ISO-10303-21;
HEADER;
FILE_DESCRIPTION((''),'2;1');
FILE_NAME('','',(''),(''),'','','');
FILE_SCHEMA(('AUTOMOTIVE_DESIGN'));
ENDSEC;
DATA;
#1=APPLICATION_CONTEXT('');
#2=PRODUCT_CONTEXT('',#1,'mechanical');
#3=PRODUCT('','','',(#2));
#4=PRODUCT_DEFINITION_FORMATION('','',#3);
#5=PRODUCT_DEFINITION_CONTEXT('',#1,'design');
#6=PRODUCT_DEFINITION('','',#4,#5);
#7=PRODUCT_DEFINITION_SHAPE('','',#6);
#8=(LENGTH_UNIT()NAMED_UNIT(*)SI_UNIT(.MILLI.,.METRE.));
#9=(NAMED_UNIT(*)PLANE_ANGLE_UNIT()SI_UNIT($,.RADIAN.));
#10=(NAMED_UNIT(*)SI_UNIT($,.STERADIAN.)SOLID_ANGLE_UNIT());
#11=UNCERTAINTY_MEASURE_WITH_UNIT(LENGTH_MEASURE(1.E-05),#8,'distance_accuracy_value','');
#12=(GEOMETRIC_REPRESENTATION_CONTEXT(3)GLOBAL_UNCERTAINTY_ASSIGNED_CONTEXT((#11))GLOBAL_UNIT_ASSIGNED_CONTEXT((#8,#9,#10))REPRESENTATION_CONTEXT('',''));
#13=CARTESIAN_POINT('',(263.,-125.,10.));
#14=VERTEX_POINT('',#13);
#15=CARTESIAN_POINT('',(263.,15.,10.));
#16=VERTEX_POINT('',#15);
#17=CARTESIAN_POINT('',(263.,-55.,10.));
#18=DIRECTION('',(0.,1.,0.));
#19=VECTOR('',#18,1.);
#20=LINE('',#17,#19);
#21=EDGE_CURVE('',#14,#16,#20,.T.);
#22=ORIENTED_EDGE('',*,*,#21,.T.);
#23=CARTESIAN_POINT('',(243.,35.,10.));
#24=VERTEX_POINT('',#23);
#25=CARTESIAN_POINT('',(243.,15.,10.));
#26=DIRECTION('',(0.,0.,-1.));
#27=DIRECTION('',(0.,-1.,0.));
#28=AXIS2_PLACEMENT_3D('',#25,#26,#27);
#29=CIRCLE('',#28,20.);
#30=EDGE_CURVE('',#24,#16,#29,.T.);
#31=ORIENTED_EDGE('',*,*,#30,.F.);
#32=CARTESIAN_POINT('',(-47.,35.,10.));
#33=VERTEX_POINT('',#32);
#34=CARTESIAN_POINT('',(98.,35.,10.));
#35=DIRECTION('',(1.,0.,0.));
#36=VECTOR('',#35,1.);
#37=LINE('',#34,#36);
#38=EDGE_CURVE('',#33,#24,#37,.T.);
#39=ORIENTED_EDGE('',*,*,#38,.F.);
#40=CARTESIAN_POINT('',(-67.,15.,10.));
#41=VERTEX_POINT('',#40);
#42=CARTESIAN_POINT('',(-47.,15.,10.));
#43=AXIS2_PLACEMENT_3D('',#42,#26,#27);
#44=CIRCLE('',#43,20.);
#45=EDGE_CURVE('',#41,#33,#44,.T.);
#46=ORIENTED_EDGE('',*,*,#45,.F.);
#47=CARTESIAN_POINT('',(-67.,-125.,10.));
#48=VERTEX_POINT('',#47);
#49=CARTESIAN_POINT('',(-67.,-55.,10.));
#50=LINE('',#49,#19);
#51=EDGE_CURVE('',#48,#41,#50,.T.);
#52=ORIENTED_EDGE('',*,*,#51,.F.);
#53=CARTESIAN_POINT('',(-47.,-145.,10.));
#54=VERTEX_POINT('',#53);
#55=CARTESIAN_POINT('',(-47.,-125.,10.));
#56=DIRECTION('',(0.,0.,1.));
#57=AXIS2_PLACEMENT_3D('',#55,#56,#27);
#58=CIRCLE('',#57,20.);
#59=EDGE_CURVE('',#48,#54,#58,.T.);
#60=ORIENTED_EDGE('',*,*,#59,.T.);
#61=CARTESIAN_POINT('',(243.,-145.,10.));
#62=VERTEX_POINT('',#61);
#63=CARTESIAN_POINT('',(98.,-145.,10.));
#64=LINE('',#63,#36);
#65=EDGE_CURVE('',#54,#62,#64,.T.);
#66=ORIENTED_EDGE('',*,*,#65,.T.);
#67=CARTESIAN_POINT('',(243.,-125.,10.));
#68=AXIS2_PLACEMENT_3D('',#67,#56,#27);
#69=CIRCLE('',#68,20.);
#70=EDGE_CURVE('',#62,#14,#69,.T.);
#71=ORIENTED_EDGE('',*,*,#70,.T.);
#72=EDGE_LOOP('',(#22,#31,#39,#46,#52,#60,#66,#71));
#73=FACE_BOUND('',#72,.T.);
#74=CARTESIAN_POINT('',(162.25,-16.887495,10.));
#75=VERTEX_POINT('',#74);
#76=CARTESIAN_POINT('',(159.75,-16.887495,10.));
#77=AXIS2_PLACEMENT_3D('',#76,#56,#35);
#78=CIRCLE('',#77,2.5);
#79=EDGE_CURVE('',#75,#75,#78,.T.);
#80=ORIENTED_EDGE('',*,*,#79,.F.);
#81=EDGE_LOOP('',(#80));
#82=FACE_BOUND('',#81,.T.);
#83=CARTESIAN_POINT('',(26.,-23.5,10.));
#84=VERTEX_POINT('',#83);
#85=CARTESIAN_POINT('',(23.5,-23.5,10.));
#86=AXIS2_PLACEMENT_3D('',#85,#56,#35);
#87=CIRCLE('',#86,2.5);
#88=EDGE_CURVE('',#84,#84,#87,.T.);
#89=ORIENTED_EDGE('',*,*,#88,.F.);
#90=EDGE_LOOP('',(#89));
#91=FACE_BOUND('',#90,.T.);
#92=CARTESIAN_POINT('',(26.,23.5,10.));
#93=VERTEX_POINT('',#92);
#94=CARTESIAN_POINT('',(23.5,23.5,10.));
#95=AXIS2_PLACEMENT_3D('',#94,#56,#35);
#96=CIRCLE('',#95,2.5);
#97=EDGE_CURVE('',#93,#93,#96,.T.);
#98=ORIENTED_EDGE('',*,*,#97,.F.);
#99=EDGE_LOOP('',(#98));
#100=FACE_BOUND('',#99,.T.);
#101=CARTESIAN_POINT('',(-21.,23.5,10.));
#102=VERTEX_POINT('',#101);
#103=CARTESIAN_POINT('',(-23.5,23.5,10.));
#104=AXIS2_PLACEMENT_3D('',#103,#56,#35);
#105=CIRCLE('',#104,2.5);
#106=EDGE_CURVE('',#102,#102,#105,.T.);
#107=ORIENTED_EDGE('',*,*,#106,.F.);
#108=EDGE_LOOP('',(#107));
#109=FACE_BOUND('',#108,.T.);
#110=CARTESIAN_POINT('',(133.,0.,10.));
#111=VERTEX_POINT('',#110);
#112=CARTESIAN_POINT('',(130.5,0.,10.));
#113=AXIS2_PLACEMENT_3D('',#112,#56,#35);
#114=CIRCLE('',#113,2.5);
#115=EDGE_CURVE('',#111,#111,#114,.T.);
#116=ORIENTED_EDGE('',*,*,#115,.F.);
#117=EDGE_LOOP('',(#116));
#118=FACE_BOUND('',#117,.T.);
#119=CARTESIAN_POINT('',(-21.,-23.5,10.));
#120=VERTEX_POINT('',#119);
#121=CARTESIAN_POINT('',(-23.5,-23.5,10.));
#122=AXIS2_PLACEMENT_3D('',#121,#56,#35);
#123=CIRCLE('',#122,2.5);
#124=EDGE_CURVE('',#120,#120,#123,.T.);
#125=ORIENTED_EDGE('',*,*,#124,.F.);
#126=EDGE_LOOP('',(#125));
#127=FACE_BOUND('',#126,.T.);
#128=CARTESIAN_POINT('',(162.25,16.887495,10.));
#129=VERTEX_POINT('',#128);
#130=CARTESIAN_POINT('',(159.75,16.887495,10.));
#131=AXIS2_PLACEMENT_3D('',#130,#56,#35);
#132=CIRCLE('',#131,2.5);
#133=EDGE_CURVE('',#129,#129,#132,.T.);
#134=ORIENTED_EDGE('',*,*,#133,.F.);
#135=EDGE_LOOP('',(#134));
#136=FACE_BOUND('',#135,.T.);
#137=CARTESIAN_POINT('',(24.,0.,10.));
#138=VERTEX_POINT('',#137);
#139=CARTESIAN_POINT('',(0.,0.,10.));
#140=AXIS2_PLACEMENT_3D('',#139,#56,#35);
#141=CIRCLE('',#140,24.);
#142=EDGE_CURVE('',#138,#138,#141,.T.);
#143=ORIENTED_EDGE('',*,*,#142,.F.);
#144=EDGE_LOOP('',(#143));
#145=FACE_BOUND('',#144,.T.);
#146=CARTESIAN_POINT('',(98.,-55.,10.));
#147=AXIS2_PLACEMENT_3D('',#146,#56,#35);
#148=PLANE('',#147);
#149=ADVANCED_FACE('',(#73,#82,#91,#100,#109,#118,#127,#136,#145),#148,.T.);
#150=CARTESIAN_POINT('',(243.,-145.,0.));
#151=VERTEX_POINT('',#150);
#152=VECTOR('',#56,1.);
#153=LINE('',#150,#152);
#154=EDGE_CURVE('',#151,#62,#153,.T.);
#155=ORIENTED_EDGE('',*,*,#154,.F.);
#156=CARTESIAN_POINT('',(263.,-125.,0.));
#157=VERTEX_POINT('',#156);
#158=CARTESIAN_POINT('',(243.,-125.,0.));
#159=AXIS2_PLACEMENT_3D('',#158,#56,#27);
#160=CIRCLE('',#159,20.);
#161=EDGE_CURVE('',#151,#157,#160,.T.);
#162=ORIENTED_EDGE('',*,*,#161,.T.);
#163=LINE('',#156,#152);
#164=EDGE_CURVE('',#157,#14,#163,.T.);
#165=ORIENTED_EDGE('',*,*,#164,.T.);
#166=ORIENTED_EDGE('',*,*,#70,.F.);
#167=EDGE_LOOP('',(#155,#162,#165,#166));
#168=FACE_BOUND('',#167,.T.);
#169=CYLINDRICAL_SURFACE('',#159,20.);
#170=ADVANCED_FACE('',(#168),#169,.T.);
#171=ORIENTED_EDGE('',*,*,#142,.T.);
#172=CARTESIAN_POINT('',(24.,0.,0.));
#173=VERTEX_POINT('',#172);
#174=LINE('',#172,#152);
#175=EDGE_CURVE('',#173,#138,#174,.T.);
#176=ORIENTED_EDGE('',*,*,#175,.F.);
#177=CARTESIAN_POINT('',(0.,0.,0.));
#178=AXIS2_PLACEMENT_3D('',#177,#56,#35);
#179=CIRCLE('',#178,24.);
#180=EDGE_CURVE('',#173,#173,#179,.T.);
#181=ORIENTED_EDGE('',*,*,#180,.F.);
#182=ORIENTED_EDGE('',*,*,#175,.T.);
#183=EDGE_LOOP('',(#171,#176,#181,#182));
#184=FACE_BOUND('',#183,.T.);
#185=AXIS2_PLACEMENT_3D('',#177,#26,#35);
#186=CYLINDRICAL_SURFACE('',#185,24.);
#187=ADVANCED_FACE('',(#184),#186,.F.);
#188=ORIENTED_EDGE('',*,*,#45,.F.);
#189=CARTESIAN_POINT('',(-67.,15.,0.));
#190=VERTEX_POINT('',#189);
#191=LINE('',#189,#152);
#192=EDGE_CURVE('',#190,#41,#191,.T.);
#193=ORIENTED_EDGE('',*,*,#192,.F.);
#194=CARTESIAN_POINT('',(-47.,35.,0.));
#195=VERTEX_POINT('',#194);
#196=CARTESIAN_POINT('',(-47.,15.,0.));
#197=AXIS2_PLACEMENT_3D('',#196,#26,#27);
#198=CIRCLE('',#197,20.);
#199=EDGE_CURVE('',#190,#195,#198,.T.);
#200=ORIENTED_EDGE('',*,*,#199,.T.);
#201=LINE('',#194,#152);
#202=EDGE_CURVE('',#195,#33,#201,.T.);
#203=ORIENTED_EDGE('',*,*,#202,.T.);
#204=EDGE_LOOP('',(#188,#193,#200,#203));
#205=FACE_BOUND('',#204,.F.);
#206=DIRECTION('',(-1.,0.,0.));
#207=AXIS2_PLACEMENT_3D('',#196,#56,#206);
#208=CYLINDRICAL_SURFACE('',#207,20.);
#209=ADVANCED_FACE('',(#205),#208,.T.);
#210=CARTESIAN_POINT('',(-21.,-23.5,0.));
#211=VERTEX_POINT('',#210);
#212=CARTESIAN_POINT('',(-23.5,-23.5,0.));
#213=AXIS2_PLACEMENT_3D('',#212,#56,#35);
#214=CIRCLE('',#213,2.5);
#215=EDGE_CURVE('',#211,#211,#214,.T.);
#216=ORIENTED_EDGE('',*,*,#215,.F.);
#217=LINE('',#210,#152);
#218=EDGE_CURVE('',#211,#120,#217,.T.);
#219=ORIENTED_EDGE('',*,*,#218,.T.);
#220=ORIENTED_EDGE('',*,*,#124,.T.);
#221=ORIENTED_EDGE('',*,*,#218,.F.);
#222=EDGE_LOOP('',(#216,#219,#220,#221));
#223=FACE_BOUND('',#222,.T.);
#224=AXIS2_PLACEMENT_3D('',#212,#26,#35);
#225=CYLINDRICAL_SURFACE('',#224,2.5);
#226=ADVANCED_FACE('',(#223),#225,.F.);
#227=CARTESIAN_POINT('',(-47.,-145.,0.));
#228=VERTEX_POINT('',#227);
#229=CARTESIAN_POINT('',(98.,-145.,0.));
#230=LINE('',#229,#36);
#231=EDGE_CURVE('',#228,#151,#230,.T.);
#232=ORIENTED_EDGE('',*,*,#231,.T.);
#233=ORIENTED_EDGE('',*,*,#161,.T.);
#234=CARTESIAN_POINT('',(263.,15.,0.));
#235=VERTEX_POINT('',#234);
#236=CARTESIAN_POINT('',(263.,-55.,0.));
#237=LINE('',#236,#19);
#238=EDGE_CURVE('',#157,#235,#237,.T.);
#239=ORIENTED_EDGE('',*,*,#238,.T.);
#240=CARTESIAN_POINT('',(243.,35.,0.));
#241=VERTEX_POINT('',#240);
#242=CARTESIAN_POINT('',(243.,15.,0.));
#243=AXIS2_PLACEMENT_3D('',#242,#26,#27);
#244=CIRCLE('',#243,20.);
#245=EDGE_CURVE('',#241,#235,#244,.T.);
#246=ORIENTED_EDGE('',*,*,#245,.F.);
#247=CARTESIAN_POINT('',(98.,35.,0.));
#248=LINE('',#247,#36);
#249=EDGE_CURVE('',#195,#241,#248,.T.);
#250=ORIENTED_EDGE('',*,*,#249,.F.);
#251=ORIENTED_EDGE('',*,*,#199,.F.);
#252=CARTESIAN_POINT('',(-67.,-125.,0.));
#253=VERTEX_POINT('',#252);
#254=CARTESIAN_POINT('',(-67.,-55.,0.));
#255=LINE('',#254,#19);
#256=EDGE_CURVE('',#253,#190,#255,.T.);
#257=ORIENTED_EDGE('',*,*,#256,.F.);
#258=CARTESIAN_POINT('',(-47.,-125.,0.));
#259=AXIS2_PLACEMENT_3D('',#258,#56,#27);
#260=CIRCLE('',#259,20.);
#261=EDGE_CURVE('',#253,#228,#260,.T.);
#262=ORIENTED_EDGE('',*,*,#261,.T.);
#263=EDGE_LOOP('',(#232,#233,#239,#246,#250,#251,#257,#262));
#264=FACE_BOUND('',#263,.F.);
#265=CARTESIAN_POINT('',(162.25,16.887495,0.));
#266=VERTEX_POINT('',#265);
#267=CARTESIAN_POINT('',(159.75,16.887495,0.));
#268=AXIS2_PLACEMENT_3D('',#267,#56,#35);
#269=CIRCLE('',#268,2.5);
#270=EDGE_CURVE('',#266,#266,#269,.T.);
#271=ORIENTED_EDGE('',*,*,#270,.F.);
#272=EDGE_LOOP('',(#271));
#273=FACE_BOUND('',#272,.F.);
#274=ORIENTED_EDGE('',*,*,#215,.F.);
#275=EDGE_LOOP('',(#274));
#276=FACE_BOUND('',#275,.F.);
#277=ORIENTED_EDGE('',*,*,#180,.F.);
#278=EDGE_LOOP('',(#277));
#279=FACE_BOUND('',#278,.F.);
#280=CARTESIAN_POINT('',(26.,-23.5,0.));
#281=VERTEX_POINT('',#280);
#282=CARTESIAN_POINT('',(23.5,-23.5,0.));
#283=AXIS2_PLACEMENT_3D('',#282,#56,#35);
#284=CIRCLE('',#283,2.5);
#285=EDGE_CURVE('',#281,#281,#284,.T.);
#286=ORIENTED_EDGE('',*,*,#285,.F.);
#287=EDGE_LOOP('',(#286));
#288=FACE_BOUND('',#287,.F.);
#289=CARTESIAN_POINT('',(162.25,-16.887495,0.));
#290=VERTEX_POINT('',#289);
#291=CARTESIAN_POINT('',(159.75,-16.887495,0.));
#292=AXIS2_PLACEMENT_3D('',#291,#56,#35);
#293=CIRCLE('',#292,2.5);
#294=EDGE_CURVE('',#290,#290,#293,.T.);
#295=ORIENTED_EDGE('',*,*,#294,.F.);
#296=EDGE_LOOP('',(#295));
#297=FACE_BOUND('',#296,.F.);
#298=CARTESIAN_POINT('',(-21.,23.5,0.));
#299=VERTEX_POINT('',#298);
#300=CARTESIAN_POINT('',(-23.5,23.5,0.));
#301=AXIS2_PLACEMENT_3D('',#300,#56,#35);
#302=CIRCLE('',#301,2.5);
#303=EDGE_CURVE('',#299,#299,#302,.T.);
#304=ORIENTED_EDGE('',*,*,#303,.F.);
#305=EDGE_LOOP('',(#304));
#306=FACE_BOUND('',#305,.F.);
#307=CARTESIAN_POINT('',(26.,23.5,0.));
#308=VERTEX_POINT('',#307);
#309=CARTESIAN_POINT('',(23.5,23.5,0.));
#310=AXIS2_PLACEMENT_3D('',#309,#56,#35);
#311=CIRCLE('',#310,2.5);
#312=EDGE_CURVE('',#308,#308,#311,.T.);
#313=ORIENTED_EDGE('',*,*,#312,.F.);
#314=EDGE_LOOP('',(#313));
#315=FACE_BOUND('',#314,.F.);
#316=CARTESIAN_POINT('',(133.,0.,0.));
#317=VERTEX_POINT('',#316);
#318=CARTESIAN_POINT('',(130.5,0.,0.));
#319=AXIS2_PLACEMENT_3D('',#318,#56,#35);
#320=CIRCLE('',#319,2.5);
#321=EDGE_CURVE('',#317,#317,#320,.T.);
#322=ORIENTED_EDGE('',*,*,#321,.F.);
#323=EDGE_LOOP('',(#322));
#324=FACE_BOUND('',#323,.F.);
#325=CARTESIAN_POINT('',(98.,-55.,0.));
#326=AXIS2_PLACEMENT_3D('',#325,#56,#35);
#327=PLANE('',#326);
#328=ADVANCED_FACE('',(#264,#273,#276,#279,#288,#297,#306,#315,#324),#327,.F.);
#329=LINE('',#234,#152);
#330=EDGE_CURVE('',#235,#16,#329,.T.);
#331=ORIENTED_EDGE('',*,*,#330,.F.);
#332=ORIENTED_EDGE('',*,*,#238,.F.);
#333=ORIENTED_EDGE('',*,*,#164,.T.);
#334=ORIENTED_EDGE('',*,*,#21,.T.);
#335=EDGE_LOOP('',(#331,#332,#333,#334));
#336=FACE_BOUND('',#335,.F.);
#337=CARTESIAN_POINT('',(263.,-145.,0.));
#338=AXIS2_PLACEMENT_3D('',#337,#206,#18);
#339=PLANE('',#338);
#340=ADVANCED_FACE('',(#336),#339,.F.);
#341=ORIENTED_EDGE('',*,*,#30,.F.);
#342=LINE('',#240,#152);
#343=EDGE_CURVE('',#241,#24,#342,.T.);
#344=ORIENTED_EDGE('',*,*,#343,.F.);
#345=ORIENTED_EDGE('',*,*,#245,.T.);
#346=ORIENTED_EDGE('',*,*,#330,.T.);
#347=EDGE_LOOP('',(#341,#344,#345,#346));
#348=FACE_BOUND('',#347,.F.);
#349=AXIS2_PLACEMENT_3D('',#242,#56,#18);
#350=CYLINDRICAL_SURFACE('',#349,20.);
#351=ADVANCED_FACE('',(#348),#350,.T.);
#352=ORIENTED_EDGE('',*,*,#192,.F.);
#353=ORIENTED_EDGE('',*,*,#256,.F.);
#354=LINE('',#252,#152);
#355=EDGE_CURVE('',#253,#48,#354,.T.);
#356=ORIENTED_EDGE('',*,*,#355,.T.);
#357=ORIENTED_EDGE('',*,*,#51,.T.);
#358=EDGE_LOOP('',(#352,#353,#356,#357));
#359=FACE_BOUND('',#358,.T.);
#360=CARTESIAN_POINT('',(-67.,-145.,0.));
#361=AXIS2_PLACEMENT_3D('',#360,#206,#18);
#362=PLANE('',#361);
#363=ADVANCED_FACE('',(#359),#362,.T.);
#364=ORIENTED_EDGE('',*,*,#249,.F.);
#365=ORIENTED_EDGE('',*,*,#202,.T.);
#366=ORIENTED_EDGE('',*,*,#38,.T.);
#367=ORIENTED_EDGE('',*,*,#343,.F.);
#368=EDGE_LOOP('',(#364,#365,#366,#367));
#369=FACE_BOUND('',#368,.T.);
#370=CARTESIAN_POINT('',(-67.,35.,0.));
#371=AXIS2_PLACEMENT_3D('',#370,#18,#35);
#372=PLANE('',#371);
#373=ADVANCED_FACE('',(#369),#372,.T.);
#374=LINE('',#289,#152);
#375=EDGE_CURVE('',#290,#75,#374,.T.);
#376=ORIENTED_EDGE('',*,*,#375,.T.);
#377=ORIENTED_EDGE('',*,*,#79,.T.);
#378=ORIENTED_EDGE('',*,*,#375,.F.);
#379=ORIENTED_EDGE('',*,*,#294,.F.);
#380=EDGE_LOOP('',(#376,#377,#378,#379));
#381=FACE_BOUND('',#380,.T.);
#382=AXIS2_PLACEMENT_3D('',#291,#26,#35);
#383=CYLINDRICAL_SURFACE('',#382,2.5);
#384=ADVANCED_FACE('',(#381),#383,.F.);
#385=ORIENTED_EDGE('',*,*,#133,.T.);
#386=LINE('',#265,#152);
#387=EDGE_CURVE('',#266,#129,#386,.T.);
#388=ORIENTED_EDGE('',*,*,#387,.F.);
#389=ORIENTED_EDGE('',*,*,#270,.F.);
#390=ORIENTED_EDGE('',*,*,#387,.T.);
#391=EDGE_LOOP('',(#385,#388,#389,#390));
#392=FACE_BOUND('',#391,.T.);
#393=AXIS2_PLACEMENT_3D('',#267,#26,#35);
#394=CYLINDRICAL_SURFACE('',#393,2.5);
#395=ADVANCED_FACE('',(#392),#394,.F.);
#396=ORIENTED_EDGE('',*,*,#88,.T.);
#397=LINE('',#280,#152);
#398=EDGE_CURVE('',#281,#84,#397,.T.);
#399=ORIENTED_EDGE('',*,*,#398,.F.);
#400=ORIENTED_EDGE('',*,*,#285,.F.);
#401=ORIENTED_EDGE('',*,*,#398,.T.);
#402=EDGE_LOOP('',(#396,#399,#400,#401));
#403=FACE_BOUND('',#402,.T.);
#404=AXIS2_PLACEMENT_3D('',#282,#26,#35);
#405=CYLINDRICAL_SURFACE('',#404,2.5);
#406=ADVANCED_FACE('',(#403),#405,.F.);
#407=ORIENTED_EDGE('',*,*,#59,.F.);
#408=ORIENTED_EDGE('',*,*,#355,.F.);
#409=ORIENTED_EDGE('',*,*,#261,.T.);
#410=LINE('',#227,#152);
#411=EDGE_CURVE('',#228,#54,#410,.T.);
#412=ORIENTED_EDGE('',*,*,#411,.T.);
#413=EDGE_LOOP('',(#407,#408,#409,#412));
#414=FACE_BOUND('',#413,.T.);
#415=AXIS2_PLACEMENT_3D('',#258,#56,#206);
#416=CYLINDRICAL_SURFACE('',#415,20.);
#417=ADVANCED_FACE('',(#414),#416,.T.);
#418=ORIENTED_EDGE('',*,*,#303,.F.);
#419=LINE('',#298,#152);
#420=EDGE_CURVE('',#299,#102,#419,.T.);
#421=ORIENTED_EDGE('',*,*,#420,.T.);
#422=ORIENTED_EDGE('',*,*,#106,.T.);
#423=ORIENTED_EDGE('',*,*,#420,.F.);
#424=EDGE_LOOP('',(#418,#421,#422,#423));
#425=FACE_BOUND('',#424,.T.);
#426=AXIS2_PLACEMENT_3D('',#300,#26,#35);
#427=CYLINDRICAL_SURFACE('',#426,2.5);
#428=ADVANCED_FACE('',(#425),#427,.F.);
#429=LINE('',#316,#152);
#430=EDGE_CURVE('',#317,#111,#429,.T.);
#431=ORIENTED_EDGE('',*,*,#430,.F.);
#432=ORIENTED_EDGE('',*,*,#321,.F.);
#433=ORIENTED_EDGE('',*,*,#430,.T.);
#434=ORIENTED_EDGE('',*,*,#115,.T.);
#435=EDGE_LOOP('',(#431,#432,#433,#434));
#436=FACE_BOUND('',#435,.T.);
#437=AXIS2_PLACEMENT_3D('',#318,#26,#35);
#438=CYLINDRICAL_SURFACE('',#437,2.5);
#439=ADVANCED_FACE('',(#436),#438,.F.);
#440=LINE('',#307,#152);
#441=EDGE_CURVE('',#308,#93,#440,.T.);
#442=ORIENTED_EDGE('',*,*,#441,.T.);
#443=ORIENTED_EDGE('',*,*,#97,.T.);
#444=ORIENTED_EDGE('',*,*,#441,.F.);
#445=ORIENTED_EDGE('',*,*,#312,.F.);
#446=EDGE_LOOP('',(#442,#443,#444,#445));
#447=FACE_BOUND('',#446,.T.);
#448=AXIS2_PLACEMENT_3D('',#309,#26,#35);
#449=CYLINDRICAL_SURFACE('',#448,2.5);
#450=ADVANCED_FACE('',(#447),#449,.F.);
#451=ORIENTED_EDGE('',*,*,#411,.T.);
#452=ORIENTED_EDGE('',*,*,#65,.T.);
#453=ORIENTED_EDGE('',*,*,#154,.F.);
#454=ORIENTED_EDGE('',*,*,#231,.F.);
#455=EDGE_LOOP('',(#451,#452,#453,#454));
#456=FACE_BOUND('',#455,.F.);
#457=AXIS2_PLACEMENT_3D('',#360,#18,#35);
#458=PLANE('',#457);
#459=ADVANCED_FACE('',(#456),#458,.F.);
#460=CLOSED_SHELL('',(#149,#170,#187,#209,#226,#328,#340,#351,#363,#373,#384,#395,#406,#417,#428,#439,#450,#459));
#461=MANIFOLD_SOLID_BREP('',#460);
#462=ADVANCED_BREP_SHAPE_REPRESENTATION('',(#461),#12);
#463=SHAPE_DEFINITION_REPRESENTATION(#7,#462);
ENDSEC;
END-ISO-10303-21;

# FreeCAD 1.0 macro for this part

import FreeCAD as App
import Part
import Sketcher
from FreeCAD import Vector


def edges_at(feature, points):
    """Names of the edges that pass closest to the given points."""
    edges = feature.Shape.Edges
    near = lambda p: min(range(len(edges)), key=lambda i: edges[i].distToShape(Part.Vertex(*p))[0])
    return sorted({f"Edge{near(p) + 1}" for p in points})


def add_polygon(sketch, points):
    """Adds a closed chain of lines whose ends are joined by coincident constraints."""
    first, n = sketch.GeometryCount, len(points)
    for a, b in zip(points, points[1:] + points[:1]):
        sketch.addGeometry(Part.LineSegment(App.Vector(*a, 0), App.Vector(*b, 0)), False)
    for i in range(n):
        sketch.addConstraint(Sketcher.Constraint("Coincident", first + i, 2, first + (i + 1) % n, 1))

doc = App.newDocument("Part")
body = doc.addObject("PartDesign::Body", "Body")

# Sketch on XY plane
sketch1 = body.newObject("Sketcher::SketchObject", "Sketch")
sketch1.AttachmentSupport = (doc.getObject("XY_Plane"), [""])
sketch1.MapMode = "FlatFace"
add_polygon(sketch1, [(-67, 35), (-67, -145), (263, -145), (263, 35)])  # lines 0-3
sketch1.addGeometry(Part.Circle(Vector(-23.5, -23.5, 0), Vector(0, 0, 1), 2.5), False)  # 4
sketch1.addGeometry(Part.Circle(Vector(23.5, -23.5, 0), Vector(0, 0, 1), 2.5), False)  # 5
sketch1.addGeometry(Part.Circle(Vector(159.8, -16.9, 0), Vector(0, 0, 1), 2.5), False)  # 6
sketch1.addGeometry(Part.Circle(Vector(0, 0, 0), Vector(0, 0, 1), 24), False)  # 7
sketch1.addGeometry(Part.Circle(Vector(-23.5, 23.5, 0), Vector(0, 0, 1), 2.5), False)  # 8
sketch1.addGeometry(Part.Circle(Vector(23.5, 23.5, 0), Vector(0, 0, 1), 2.5), False)  # 9
sketch1.addGeometry(Part.Circle(Vector(130.5, 0, 0), Vector(0, 0, 1), 2.5), False)  # 10
sketch1.addGeometry(Part.Circle(Vector(159.8, 16.9, 0), Vector(0, 0, 1), 2.5), False)  # 11
sketch1.addConstraint(Sketcher.Constraint("Vertical", 0))
sketch1.addConstraint(Sketcher.Constraint("Horizontal", 1))
sketch1.addConstraint(Sketcher.Constraint("Vertical", 2))
sketch1.addConstraint(Sketcher.Constraint("Horizontal", 3))
sketch1.addConstraint(Sketcher.Constraint("Coincident", 7, 3, -1, 1))
sketch1.addConstraint(Sketcher.Constraint("Equal", 4, 5))
sketch1.addConstraint(Sketcher.Constraint("Equal", 5, 6))
sketch1.addConstraint(Sketcher.Constraint("Equal", 6, 8))
sketch1.addConstraint(Sketcher.Constraint("Equal", 8, 9))
sketch1.addConstraint(Sketcher.Constraint("Equal", 9, 10))
sketch1.addConstraint(Sketcher.Constraint("Equal", 10, 11))
sketch1.addConstraint(Sketcher.Constraint("Symmetric", 5, 3, 8, 3, -1, 1))
sketch1.addConstraint(Sketcher.Constraint("Symmetric", 4, 3, 9, 3, -1, 1))
sketch1.addConstraint(Sketcher.Constraint("Symmetric", 4, 3, 5, 3, -2))
sketch1.addConstraint(Sketcher.Constraint("Symmetric", 6, 3, 11, 3, -1))
sketch1.addConstraint(Sketcher.Constraint("PointOnObject", 10, 3, -1))
sketch1.addConstraint(Sketcher.Constraint("Diameter", 4, 5.0))
sketch1.addConstraint(Sketcher.Constraint("Diameter", 7, 48.0))
sketch1.addConstraint(Sketcher.Constraint("DistanceX", 1, 1, 1, 2, 330.0))
sketch1.addConstraint(Sketcher.Constraint("DistanceY", 0, 2, 0, 1, 180.0))
sketch1.addConstraint(Sketcher.Constraint("DistanceX", 0, 2, -1, 1, 67.0))
sketch1.addConstraint(Sketcher.Constraint("DistanceY", 0, 2, -1, 1, 145.0))
sketch1.addConstraint(Sketcher.Constraint("DistanceX", 4, 3, 5, 3, 47.0))
sketch1.addConstraint(Sketcher.Constraint("DistanceY", 4, 3, 8, 3, 47.0))
sketch1.addConstraint(Sketcher.Constraint("DistanceX", 5, 3, 10, 3, 107.0))
sketch1.addConstraint(Sketcher.Constraint("DistanceX", -1, 1, 6, 3, 159.75))
sketch1.addConstraint(Sketcher.Constraint("DistanceY", 6, 3, 11, 3, 33.77499))
pad1 = body.newObject("PartDesign::Pad", "Pad")
pad1.Profile = sketch1
pad1.Length = 10
doc.recompute()

fillet = body.newObject("PartDesign::Fillet", "Fillet")
fillet.Base = (pad1, edges_at(pad1, [
    (-67, -145, 5),
    (263, -145, 5),
    (263, 35, 5),
    (-67, 35, 5),
]))
fillet.Radius = 20

doc.recompute()
